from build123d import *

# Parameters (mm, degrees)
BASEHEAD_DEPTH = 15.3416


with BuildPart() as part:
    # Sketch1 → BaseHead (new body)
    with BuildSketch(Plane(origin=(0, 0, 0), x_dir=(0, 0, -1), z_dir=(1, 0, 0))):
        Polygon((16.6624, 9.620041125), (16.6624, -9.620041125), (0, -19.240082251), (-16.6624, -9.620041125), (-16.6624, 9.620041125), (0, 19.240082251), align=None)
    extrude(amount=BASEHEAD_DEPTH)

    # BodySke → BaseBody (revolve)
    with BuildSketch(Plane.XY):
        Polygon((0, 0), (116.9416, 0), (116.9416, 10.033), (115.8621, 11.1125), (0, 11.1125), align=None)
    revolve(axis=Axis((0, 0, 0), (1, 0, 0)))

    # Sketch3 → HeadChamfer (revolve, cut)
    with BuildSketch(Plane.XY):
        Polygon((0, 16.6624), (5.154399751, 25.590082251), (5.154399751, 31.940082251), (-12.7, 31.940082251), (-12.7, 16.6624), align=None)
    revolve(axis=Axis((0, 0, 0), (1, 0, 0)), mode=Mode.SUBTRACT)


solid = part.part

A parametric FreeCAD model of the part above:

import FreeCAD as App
import Part
import Sketcher
Q = App.Units.Quantity

doc = App.newDocument("Part")
body = doc.addObject("PartDesign::Body", "Body")

# Sketch on YZ plane
sketch1 = body.newObject("Sketcher::SketchObject", "Sketch")
sketch1.AttachmentSupport = (doc.getObject("YZ_Plane"), [""])
sketch1.MapMode = "FlatFace"
sketch1.addGeometry([
    Part.LineSegment(App.Vector(-10, -17, 0), App.Vector(10, -17, 0)),  # 0
    Part.LineSegment(App.Vector(10, -17, 0), App.Vector(19, 0, 0)),  # 1
    Part.LineSegment(App.Vector(19, 0, 0), App.Vector(10, 17, 0)),  # 2
    Part.LineSegment(App.Vector(10, 17, 0), App.Vector(-10, 17, 0)),  # 3
    Part.LineSegment(App.Vector(-10, 17, 0), App.Vector(-19, 0, 0)),  # 4
    Part.LineSegment(App.Vector(-19, 0, 0), App.Vector(-10, -17, 0)),  # 5
], False)
sketch1.addConstraint([
    Sketcher.Constraint("Coincident", 0, 2, 1, 1),
    Sketcher.Constraint("Coincident", 1, 2, 2, 1),
    Sketcher.Constraint("Coincident", 2, 2, 3, 1),
    Sketcher.Constraint("Coincident", 3, 2, 4, 1),
    Sketcher.Constraint("Coincident", 4, 2, 5, 1),
    Sketcher.Constraint("Coincident", 5, 2, 0, 1),
    Sketcher.Constraint("Horizontal", 0),
    Sketcher.Constraint("Horizontal", 3),
    Sketcher.Constraint("Symmetric", 0, 2, 3, 2, -1, 1),
    Sketcher.Constraint("Symmetric", 1, 2, 4, 2, -1, 1),
    Sketcher.Constraint("PointOnObject", 1, 2, -1),
    Sketcher.Constraint("Parallel", 2, 5),
    Sketcher.Constraint("Vertical", 0, 2, 2, 2),
    Sketcher.Constraint("Angle", 1, Q("60 deg")),
    Sketcher.Constraint("DistanceY", 0, 2, -1, 1, Q("0.656 in")),
    Sketcher.Constraint("DistanceX", 0, 1, 0, 2, Q("19.240082 mm")),
])
pad1 = body.newObject("PartDesign::Pad", "Pad")
pad1.Profile = sketch1
pad1.Length = Q("0.604 in")

# Sketch on XY plane
sketch2 = body.newObject("Sketcher::SketchObject", "Sketch001")
sketch2.AttachmentSupport = (doc.getObject("XY_Plane"), [""])
sketch2.MapMode = "FlatFace"
sketch2.addGeometry([
    Part.LineSegment(App.Vector(0, 0, 0), App.Vector(116.9, 0, 0)),  # 0
    Part.LineSegment(App.Vector(116.9, 0, 0), App.Vector(116.9, 10, 0)),  # 1
    Part.LineSegment(App.Vector(116.9, 10, 0), App.Vector(115.9, 11.1, 0)),  # 2
    Part.LineSegment(App.Vector(115.9, 11.1, 0), App.Vector(0, 11.1, 0)),  # 3
    Part.LineSegment(App.Vector(0, 11.1, 0), App.Vector(0, 0, 0)),  # 4
], False)
sketch2.addConstraint([
    Sketcher.Constraint("Coincident", 0, 2, 1, 1),
    Sketcher.Constraint("Coincident", 1, 2, 2, 1),
    Sketcher.Constraint("Coincident", 2, 2, 3, 1),
    Sketcher.Constraint("Coincident", 3, 2, 4, 1),
    Sketcher.Constraint("Coincident", 4, 2, 0, 1),
    Sketcher.Constraint("Horizontal", 0),
    Sketcher.Constraint("Vertical", 1),
    Sketcher.Constraint("Horizontal", 3),
    Sketcher.Constraint("Vertical", 4),
    Sketcher.Constraint("Coincident", 4, 2, -1, 1),
    Sketcher.Constraint("Angle", 2, Q("135 deg")),
    Sketcher.Constraint("DistanceX", 0, 1, 0, 2, Q("4.604 in")),
    Sketcher.Constraint("DistanceY", 1, 1, 1, 2, Q("0.395 in")),
    Sketcher.Constraint("DistanceY", 4, 2, 4, 1, Q("0.4375 in")),
])
revolution = body.newObject("PartDesign::Revolution", "Revolution")
revolution.Profile = sketch2
revolution.ReferenceAxis = (sketch2, ["H_Axis"])
revolution.Angle = 360

# Sketch on XY plane
sketch3 = body.newObject("Sketcher::SketchObject", "Sketch002")
sketch3.AttachmentSupport = (doc.getObject("XY_Plane"), [""])
sketch3.MapMode = "FlatFace"
sketch3.addGeometry([
    Part.LineSegment(App.Vector(0, 17, 0), App.Vector(5, 26, 0)),  # 0
    Part.LineSegment(App.Vector(5, 26, 0), App.Vector(5, 32, 0)),  # 1
    Part.LineSegment(App.Vector(5, 32, 0), App.Vector(-13, 32, 0)),  # 2
    Part.LineSegment(App.Vector(-13, 32, 0), App.Vector(-13, 17, 0)),  # 3
    Part.LineSegment(App.Vector(-13, 17, 0), App.Vector(0, 17, 0)),  # 4
], False)
sketch3.addConstraint([
    Sketcher.Constraint("Coincident", 0, 2, 1, 1),
    Sketcher.Constraint("Coincident", 1, 2, 2, 1),
    Sketcher.Constraint("Coincident", 2, 2, 3, 1),
    Sketcher.Constraint("Coincident", 3, 2, 4, 1),
    Sketcher.Constraint("Coincident", 4, 2, 0, 1),
    Sketcher.Constraint("Vertical", 1),
    Sketcher.Constraint("Horizontal", 2),
    Sketcher.Constraint("Vertical", 3),
    Sketcher.Constraint("Horizontal", 4),
    Sketcher.Constraint("PointOnObject", 4, 2, -2),
    Sketcher.Constraint("DistanceX", 4, 1, 4, 2, Q("0.5 in")),
    Sketcher.Constraint("Angle", 0, Q("60 deg")),
    Sketcher.Constraint("DistanceY", 1, 1, 1, 2, Q("0.25 in")),
    Sketcher.Constraint("DistanceY", -1, 1, 3, 2, Q("0.656 in")),
    Sketcher.Constraint("DistanceX", 2, 2, 2, 1, Q("17.8544 mm")),
])
groove = body.newObject("PartDesign::Groove", "Groove")
groove.Profile = sketch3
groove.ReferenceAxis = (sketch3, ["H_Axis"])
groove.Angle = 360

doc.recompute()
